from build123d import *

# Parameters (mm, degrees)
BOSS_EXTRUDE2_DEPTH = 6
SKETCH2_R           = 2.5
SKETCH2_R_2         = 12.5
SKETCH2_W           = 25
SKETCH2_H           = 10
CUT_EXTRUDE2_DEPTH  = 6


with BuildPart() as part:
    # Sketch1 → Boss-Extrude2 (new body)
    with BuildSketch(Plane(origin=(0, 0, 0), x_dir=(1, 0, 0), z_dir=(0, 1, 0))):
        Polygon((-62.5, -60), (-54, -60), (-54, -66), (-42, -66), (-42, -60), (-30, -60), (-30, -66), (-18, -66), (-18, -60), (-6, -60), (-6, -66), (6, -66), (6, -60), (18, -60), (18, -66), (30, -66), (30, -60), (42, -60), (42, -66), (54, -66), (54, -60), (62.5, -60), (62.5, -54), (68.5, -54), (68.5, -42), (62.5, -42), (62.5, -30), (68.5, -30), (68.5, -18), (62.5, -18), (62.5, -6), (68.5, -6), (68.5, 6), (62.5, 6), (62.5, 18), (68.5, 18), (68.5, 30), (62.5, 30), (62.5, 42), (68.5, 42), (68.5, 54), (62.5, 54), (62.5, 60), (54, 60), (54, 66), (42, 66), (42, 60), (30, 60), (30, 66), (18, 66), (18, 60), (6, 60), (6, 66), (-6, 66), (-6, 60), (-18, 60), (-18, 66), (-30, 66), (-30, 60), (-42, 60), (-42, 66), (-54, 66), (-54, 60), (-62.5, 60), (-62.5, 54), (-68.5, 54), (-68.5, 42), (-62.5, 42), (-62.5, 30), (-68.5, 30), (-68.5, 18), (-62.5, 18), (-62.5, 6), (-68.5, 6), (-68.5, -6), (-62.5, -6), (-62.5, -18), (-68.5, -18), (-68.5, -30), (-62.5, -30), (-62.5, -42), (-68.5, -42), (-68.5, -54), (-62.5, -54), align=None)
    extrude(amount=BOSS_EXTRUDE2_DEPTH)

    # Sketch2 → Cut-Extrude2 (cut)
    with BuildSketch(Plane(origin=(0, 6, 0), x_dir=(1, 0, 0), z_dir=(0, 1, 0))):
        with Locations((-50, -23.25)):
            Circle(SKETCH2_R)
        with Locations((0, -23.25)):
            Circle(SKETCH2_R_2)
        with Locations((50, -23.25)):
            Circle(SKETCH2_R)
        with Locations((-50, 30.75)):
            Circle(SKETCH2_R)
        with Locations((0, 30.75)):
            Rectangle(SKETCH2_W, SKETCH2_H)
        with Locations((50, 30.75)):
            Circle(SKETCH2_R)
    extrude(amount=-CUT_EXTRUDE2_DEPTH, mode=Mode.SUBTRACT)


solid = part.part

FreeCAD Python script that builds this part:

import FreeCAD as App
import Part
import Sketcher


def add_polygon(sketch, points):
    """Adds a closed chain of lines whose ends are joined by coincident constraints."""
    first, n = sketch.GeometryCount, len(points)
    for a, b in zip(points, points[1:] + points[:1]):
        sketch.addGeometry(Part.LineSegment(App.Vector(*a, 0), App.Vector(*b, 0)), False)
    for i in range(n):
        sketch.addConstraint(Sketcher.Constraint("Coincident", first + i, 2, first + (i + 1) % n, 1))

doc = App.newDocument("Part")
params = doc.addObject("Spreadsheet::Sheet", "Params")
for row, (alias, value) in enumerate([
    ("sketch1_width", "12 mm"),
    ("sketch1_width2", "6 mm"),
    ("sketch1_width3", "8.5 mm"),
    ("pad1_length", "6 mm"),
    ("sketch2_diameter", "5 mm"),
    ("sketch2_diameter2", "25 mm"),
    ("sketch2_width", "25 mm"),
    ("sketch2_height", "10 mm"),
    ("pocket1_length", "6 mm"),
], start=1):
    params.set(f"A{row}", alias)
    params.set(f"B{row}", "=" + value)
    params.setAlias(f"B{row}", alias)

body = doc.addObject("PartDesign::Body", "Body")

# Sketch on XZ plane
sketch1 = body.newObject("Sketcher::SketchObject", "Sketch")
sketch1.AttachmentSupport = (doc.getObject("XZ_Plane"), [""])
sketch1.MapMode = "FlatFace"
add_polygon(sketch1, [(-62, 60), (-54, 60), (-54, 66), (-42, 66), (-42, 60), (-30, 60), (-30, 66), (-18, 66), (-18, 60), (-6, 60), (-6, 66), (6, 66), (6, 60), (18, 60), (18, 66), (30, 66), (30, 60), (42, 60), (42, 66), (54, 66), (54, 60), (62, 60), (62, 54), (68, 54), (68, 42), (62, 42), (62, 30), (68, 30), (68, 18), (62, 18), (62, 6), (68, 6), (68, -6), (62, -6), (62, -18), (68, -18), (68, -30), (62, -30), (62, -42), (68, -42), (68, -54), (62, -54), (62, -60), (54, -60), (54, -66), (42, -66), (42, -60), (30, -60), (30, -66), (18, -66), (18, -60), (6, -60), (6, -66), (-6, -66), (-6, -60), (-18, -60), (-18, -66), (-30, -66), (-30, -60), (-42, -60), (-42, -66), (-54, -66), (-54, -60), (-62, -60), (-62, -54), (-68, -54), (-68, -42), (-62, -42), (-62, -30), (-68, -30), (-68, -18), (-62, -18), (-62, -6), (-68, -6), (-68, 6), (-62, 6), (-62, 18), (-68, 18), (-68, 30), (-62, 30), (-62, 42), (-68, 42), (-68, 54), (-62, 54)])  # lines 0-83
sketch1.addConstraint([
    Sketcher.Constraint("Horizontal", 0),
    Sketcher.Constraint("Vertical", 1),
    Sketcher.Constraint("Horizontal", 2),
    Sketcher.Constraint("Vertical", 3),
    Sketcher.Constraint("Horizontal", 4),
    Sketcher.Constraint("Vertical", 5),
    Sketcher.Constraint("Horizontal", 6),
    Sketcher.Constraint("Vertical", 7),
    Sketcher.Constraint("Horizontal", 8),
    Sketcher.Constraint("Vertical", 9),
    Sketcher.Constraint("Horizontal", 10),
    Sketcher.Constraint("Vertical", 11),
    Sketcher.Constraint("Horizontal", 12),
    Sketcher.Constraint("Vertical", 13),
    Sketcher.Constraint("Horizontal", 14),
    Sketcher.Constraint("Vertical", 15),
    Sketcher.Constraint("Horizontal", 16),
    Sketcher.Constraint("Vertical", 17),
    Sketcher.Constraint("Horizontal", 18),
    Sketcher.Constraint("Vertical", 19),
    Sketcher.Constraint("Horizontal", 20),
    Sketcher.Constraint("Vertical", 21),
    Sketcher.Constraint("Horizontal", 22),
    Sketcher.Constraint("Vertical", 23),
    Sketcher.Constraint("Horizontal", 24),
    Sketcher.Constraint("Vertical", 25),
    Sketcher.Constraint("Horizontal", 26),
    Sketcher.Constraint("Vertical", 27),
    Sketcher.Constraint("Horizontal", 28),
    Sketcher.Constraint("Vertical", 29),
    Sketcher.Constraint("Horizontal", 30),
    Sketcher.Constraint("Vertical", 31),
    Sketcher.Constraint("Horizontal", 32),
    Sketcher.Constraint("Vertical", 33),
    Sketcher.Constraint("Horizontal", 34),
    Sketcher.Constraint("Vertical", 35),
    Sketcher.Constraint("Horizontal", 36),
    Sketcher.Constraint("Vertical", 37),
    Sketcher.Constraint("Horizontal", 38),
    Sketcher.Constraint("Vertical", 39),
    Sketcher.Constraint("Horizontal", 40),
    Sketcher.Constraint("Vertical", 41),
    Sketcher.Constraint("Horizontal", 42),
    Sketcher.Constraint("Vertical", 43),
    Sketcher.Constraint("Horizontal", 44),
    Sketcher.Constraint("Vertical", 45),
    Sketcher.Constraint("Horizontal", 46),
    Sketcher.Constraint("Vertical", 47),
    Sketcher.Constraint("Horizontal", 48),
    Sketcher.Constraint("Vertical", 49),
    Sketcher.Constraint("Horizontal", 50),
    Sketcher.Constraint("Vertical", 51),
    Sketcher.Constraint("Horizontal", 52),
    Sketcher.Constraint("Vertical", 53),
    Sketcher.Constraint("Horizontal", 54),
    Sketcher.Constraint("Vertical", 55),
    Sketcher.Constraint("Horizontal", 56),
    Sketcher.Constraint("Vertical", 57),
    Sketcher.Constraint("Horizontal", 58),
    Sketcher.Constraint("Vertical", 59),
    Sketcher.Constraint("Horizontal", 60),
    Sketcher.Constraint("Vertical", 61),
    Sketcher.Constraint("Horizontal", 62),
    Sketcher.Constraint("Vertical", 63),
    Sketcher.Constraint("Horizontal", 64),
    Sketcher.Constraint("Vertical", 65),
    Sketcher.Constraint("Horizontal", 66),
    Sketcher.Constraint("Vertical", 67),
    Sketcher.Constraint("Horizontal", 68),
    Sketcher.Constraint("Vertical", 69),
    Sketcher.Constraint("Horizontal", 70),
    Sketcher.Constraint("Vertical", 71),
    Sketcher.Constraint("Horizontal", 72),
    Sketcher.Constraint("Vertical", 73),
    Sketcher.Constraint("Horizontal", 74),
    Sketcher.Constraint("Vertical", 75),
    Sketcher.Constraint("Horizontal", 76),
    Sketcher.Constraint("Vertical", 77),
    Sketcher.Constraint("Horizontal", 78),
    Sketcher.Constraint("Vertical", 79),
    Sketcher.Constraint("Horizontal", 80),
    Sketcher.Constraint("Vertical", 81),
    Sketcher.Constraint("Horizontal", 82),
    Sketcher.Constraint("Vertical", 83),
    Sketcher.Constraint("Symmetric", 0, 2, 42, 2, -1, 1),
    Sketcher.Constraint("Symmetric", 2, 2, 44, 2, -1, 1),
    Sketcher.Constraint("Symmetric", 4, 2, 46, 2, -1, 1),
    Sketcher.Constraint("Symmetric", 6, 2, 48, 2, -1, 1),
    Sketcher.Constraint("Symmetric", 8, 2, 50, 2, -1, 1),
    Sketcher.Constraint("Symmetric", 10, 2, 52, 2, -1, 1),
    Sketcher.Constraint("Symmetric", 12, 2, 54, 2, -1, 1),
    Sketcher.Constraint("Symmetric", 14, 2, 56, 2, -1, 1),
    Sketcher.Constraint("Symmetric", 16, 2, 58, 2, -1, 1),
    Sketcher.Constraint("Symmetric", 18, 2, 60, 2, -1, 1),
    Sketcher.Constraint("Symmetric", 20, 2, 62, 2, -1, 1),
    Sketcher.Constraint("Symmetric", 22, 2, 64, 2, -1, 1),
    Sketcher.Constraint("Symmetric", 24, 2, 66, 2, -1, 1),
    Sketcher.Constraint("Symmetric", 26, 2, 68, 2, -1, 1),
    Sketcher.Constraint("Symmetric", 28, 2, 70, 2, -1, 1),
    Sketcher.Constraint("Symmetric", 30, 2, 72, 2, -1, 1),
    Sketcher.Constraint("Symmetric", 32, 2, 74, 2, -1, 1),
    Sketcher.Constraint("Symmetric", 34, 2, 76, 2, -1, 1),
    Sketcher.Constraint("Symmetric", 36, 2, 78, 2, -1, 1),
    Sketcher.Constraint("Symmetric", 38, 2, 80, 2, -1, 1),
    Sketcher.Constraint("Symmetric", 40, 2, 82, 2, -1, 1),
    Sketcher.Constraint("Symmetric", 8, 2, 11, 2, -2),
    Sketcher.Constraint("Symmetric", 6, 2, 13, 2, -2),
    Sketcher.Constraint("Symmetric", 4, 2, 15, 2, -2),
    Sketcher.Constraint("Symmetric", 2, 2, 17, 2, -2),
    Sketcher.Constraint("Symmetric", 0, 2, 19, 2, -2),
    Sketcher.Constraint("Symmetric", 40, 2, 63, 2, -2),
    Sketcher.Constraint("Symmetric", 38, 2, 65, 2, -2),
    Sketcher.Constraint("Symmetric", 36, 2, 67, 2, -2),
    Sketcher.Constraint("Symmetric", 34, 2, 69, 2, -2),
    Sketcher.Constraint("Symmetric", 32, 2, 71, 2, -2),
    Sketcher.Constraint("Horizontal", 0, 2, 3, 2),
    Sketcher.Constraint("Horizontal", 2, 2, 5, 2),
    Sketcher.Constraint("Horizontal", 4, 2, 7, 2),
    Sketcher.Constraint("Horizontal", 6, 2, 9, 2),
    Sketcher.Constraint("Vertical", 21, 2, 24, 2),
    Sketcher.Constraint("Vertical", 23, 2, 26, 2),
    Sketcher.Constraint("Vertical", 25, 2, 28, 2),
    Sketcher.Constraint("Vertical", 27, 2, 30, 2),
    Sketcher.Constraint("Equal", 2, 4),
    Sketcher.Constraint("Equal", 4, 6),
    Sketcher.Constraint("Equal", 6, 8),
    Sketcher.Constraint("Equal", 8, 10),
    Sketcher.Constraint("Equal", 82, 1),
    Sketcher.Constraint("Equal", 19, 21),
    Sketcher.Constraint("Equal", 60, 23),
    Sketcher.Constraint("Equal", 23, 25),
    Sketcher.Constraint("Equal", 25, 27),
    Sketcher.Constraint("Equal", 27, 29),
    Sketcher.Constraint("Equal", 29, 31),
    Sketcher.Constraint("DistanceX", 2, 1, 2, 2, 12.0),
    Sketcher.Constraint("DistanceX", 22, 1, 22, 2, 6.0),
    Sketcher.Constraint("DistanceX", 0, 1, 0, 2, 8.5),
])
sketch1.setExpression("Constraints[218]", "Params.sketch1_width")
sketch1.setExpression("Constraints[219]", "Params.sketch1_width2")
sketch1.setExpression("Constraints[220]", "Params.sketch1_width3")
pad1 = body.newObject("PartDesign::Pad", "Pad")
pad1.Profile = sketch1
pad1.setExpression("Length", "Params.pad1_length")
pad1.Reversed = True

# Sketch on XZ plane
sketch2 = body.newObject("Sketcher::SketchObject", "Sketch001")
sketch2.AttachmentSupport = (doc.getObject("XZ_Plane"), [""])
sketch2.MapMode = "FlatFace"
sketch2.AttachmentOffset = App.Placement(App.Vector(0, 0, -6), App.Rotation())
sketch2.addGeometry(Part.Circle(App.Vector(-50, 23.2, 0), App.Vector(0, 0, 1), 2.5), False)  # 0
sketch2.addGeometry(Part.Circle(App.Vector(0, 23.2, 0), App.Vector(0, 0, 1), 12.5), False)  # 1
sketch2.addGeometry(Part.Circle(App.Vector(50, 23.2, 0), App.Vector(0, 0, 1), 2.5), False)  # 2
sketch2.addGeometry(Part.Circle(App.Vector(-50, -30.8, 0), App.Vector(0, 0, 1), 2.5), False)  # 3
add_polygon(sketch2, [(-12.5, -35.8), (-12.5, -25.8), (12.5, -25.8), (12.5, -35.8)])  # lines 4-7
sketch2.addGeometry(Part.Circle(App.Vector(50, -30.8, 0), App.Vector(0, 0, 1), 2.5), False)  # 8
sketch2.addConstraint([
    Sketcher.Constraint("Vertical", 4),
    Sketcher.Constraint("Horizontal", 5),
    Sketcher.Constraint("Vertical", 6),
    Sketcher.Constraint("Horizontal", 7),
    Sketcher.Constraint("Equal", 0, 2),
    Sketcher.Constraint("Equal", 2, 3),
    Sketcher.Constraint("Equal", 3, 8),
    Sketcher.Constraint("Symmetric", 0, 3, 2, 3, -2),
    Sketcher.Constraint("Symmetric", 3, 3, 8, 3, -2),
    Sketcher.Constraint("PointOnObject", 1, 3, -2),
    Sketcher.Constraint("Horizontal", 0, 3, 1, 3),
    Sketcher.Constraint("Vertical", 0, 3, 3, 3),
    Sketcher.Constraint("Diameter", 0, 5.0),
    Sketcher.Constraint("Diameter", 1, 25.0),
    Sketcher.Constraint("DistanceX", 5, 1, 5, 2, 25.0),
    Sketcher.Constraint("DistanceY", 4, 1, 4, 2, 10.0),
    Sketcher.Constraint("DistanceX", 0, 3, -1, 1, 50.0),
    Sketcher.Constraint("DistanceY", 3, 3, 0, 3, 54.0),
    Sketcher.Constraint("DistanceY", 3, 3, 4, 2, 5.0),
    Sketcher.Constraint("DistanceX", 4, 2, -1, 1, 12.5),
    Sketcher.Constraint("DistanceY", -1, 1, 0, 3, 23.25),
])
sketch2.setExpression("Constraints[16]", "Params.sketch2_diameter")
sketch2.setExpression("Constraints[17]", "Params.sketch2_diameter2")
sketch2.setExpression("Constraints[18]", "Params.sketch2_width")
sketch2.setExpression("Constraints[19]", "Params.sketch2_height")
pocket1 = body.newObject("PartDesign::Pocket", "Pocket")
pocket1.Profile = sketch2
pocket1.setExpression("Length", "Params.pocket1_length")
pocket1.Reversed = True

doc.recompute()
